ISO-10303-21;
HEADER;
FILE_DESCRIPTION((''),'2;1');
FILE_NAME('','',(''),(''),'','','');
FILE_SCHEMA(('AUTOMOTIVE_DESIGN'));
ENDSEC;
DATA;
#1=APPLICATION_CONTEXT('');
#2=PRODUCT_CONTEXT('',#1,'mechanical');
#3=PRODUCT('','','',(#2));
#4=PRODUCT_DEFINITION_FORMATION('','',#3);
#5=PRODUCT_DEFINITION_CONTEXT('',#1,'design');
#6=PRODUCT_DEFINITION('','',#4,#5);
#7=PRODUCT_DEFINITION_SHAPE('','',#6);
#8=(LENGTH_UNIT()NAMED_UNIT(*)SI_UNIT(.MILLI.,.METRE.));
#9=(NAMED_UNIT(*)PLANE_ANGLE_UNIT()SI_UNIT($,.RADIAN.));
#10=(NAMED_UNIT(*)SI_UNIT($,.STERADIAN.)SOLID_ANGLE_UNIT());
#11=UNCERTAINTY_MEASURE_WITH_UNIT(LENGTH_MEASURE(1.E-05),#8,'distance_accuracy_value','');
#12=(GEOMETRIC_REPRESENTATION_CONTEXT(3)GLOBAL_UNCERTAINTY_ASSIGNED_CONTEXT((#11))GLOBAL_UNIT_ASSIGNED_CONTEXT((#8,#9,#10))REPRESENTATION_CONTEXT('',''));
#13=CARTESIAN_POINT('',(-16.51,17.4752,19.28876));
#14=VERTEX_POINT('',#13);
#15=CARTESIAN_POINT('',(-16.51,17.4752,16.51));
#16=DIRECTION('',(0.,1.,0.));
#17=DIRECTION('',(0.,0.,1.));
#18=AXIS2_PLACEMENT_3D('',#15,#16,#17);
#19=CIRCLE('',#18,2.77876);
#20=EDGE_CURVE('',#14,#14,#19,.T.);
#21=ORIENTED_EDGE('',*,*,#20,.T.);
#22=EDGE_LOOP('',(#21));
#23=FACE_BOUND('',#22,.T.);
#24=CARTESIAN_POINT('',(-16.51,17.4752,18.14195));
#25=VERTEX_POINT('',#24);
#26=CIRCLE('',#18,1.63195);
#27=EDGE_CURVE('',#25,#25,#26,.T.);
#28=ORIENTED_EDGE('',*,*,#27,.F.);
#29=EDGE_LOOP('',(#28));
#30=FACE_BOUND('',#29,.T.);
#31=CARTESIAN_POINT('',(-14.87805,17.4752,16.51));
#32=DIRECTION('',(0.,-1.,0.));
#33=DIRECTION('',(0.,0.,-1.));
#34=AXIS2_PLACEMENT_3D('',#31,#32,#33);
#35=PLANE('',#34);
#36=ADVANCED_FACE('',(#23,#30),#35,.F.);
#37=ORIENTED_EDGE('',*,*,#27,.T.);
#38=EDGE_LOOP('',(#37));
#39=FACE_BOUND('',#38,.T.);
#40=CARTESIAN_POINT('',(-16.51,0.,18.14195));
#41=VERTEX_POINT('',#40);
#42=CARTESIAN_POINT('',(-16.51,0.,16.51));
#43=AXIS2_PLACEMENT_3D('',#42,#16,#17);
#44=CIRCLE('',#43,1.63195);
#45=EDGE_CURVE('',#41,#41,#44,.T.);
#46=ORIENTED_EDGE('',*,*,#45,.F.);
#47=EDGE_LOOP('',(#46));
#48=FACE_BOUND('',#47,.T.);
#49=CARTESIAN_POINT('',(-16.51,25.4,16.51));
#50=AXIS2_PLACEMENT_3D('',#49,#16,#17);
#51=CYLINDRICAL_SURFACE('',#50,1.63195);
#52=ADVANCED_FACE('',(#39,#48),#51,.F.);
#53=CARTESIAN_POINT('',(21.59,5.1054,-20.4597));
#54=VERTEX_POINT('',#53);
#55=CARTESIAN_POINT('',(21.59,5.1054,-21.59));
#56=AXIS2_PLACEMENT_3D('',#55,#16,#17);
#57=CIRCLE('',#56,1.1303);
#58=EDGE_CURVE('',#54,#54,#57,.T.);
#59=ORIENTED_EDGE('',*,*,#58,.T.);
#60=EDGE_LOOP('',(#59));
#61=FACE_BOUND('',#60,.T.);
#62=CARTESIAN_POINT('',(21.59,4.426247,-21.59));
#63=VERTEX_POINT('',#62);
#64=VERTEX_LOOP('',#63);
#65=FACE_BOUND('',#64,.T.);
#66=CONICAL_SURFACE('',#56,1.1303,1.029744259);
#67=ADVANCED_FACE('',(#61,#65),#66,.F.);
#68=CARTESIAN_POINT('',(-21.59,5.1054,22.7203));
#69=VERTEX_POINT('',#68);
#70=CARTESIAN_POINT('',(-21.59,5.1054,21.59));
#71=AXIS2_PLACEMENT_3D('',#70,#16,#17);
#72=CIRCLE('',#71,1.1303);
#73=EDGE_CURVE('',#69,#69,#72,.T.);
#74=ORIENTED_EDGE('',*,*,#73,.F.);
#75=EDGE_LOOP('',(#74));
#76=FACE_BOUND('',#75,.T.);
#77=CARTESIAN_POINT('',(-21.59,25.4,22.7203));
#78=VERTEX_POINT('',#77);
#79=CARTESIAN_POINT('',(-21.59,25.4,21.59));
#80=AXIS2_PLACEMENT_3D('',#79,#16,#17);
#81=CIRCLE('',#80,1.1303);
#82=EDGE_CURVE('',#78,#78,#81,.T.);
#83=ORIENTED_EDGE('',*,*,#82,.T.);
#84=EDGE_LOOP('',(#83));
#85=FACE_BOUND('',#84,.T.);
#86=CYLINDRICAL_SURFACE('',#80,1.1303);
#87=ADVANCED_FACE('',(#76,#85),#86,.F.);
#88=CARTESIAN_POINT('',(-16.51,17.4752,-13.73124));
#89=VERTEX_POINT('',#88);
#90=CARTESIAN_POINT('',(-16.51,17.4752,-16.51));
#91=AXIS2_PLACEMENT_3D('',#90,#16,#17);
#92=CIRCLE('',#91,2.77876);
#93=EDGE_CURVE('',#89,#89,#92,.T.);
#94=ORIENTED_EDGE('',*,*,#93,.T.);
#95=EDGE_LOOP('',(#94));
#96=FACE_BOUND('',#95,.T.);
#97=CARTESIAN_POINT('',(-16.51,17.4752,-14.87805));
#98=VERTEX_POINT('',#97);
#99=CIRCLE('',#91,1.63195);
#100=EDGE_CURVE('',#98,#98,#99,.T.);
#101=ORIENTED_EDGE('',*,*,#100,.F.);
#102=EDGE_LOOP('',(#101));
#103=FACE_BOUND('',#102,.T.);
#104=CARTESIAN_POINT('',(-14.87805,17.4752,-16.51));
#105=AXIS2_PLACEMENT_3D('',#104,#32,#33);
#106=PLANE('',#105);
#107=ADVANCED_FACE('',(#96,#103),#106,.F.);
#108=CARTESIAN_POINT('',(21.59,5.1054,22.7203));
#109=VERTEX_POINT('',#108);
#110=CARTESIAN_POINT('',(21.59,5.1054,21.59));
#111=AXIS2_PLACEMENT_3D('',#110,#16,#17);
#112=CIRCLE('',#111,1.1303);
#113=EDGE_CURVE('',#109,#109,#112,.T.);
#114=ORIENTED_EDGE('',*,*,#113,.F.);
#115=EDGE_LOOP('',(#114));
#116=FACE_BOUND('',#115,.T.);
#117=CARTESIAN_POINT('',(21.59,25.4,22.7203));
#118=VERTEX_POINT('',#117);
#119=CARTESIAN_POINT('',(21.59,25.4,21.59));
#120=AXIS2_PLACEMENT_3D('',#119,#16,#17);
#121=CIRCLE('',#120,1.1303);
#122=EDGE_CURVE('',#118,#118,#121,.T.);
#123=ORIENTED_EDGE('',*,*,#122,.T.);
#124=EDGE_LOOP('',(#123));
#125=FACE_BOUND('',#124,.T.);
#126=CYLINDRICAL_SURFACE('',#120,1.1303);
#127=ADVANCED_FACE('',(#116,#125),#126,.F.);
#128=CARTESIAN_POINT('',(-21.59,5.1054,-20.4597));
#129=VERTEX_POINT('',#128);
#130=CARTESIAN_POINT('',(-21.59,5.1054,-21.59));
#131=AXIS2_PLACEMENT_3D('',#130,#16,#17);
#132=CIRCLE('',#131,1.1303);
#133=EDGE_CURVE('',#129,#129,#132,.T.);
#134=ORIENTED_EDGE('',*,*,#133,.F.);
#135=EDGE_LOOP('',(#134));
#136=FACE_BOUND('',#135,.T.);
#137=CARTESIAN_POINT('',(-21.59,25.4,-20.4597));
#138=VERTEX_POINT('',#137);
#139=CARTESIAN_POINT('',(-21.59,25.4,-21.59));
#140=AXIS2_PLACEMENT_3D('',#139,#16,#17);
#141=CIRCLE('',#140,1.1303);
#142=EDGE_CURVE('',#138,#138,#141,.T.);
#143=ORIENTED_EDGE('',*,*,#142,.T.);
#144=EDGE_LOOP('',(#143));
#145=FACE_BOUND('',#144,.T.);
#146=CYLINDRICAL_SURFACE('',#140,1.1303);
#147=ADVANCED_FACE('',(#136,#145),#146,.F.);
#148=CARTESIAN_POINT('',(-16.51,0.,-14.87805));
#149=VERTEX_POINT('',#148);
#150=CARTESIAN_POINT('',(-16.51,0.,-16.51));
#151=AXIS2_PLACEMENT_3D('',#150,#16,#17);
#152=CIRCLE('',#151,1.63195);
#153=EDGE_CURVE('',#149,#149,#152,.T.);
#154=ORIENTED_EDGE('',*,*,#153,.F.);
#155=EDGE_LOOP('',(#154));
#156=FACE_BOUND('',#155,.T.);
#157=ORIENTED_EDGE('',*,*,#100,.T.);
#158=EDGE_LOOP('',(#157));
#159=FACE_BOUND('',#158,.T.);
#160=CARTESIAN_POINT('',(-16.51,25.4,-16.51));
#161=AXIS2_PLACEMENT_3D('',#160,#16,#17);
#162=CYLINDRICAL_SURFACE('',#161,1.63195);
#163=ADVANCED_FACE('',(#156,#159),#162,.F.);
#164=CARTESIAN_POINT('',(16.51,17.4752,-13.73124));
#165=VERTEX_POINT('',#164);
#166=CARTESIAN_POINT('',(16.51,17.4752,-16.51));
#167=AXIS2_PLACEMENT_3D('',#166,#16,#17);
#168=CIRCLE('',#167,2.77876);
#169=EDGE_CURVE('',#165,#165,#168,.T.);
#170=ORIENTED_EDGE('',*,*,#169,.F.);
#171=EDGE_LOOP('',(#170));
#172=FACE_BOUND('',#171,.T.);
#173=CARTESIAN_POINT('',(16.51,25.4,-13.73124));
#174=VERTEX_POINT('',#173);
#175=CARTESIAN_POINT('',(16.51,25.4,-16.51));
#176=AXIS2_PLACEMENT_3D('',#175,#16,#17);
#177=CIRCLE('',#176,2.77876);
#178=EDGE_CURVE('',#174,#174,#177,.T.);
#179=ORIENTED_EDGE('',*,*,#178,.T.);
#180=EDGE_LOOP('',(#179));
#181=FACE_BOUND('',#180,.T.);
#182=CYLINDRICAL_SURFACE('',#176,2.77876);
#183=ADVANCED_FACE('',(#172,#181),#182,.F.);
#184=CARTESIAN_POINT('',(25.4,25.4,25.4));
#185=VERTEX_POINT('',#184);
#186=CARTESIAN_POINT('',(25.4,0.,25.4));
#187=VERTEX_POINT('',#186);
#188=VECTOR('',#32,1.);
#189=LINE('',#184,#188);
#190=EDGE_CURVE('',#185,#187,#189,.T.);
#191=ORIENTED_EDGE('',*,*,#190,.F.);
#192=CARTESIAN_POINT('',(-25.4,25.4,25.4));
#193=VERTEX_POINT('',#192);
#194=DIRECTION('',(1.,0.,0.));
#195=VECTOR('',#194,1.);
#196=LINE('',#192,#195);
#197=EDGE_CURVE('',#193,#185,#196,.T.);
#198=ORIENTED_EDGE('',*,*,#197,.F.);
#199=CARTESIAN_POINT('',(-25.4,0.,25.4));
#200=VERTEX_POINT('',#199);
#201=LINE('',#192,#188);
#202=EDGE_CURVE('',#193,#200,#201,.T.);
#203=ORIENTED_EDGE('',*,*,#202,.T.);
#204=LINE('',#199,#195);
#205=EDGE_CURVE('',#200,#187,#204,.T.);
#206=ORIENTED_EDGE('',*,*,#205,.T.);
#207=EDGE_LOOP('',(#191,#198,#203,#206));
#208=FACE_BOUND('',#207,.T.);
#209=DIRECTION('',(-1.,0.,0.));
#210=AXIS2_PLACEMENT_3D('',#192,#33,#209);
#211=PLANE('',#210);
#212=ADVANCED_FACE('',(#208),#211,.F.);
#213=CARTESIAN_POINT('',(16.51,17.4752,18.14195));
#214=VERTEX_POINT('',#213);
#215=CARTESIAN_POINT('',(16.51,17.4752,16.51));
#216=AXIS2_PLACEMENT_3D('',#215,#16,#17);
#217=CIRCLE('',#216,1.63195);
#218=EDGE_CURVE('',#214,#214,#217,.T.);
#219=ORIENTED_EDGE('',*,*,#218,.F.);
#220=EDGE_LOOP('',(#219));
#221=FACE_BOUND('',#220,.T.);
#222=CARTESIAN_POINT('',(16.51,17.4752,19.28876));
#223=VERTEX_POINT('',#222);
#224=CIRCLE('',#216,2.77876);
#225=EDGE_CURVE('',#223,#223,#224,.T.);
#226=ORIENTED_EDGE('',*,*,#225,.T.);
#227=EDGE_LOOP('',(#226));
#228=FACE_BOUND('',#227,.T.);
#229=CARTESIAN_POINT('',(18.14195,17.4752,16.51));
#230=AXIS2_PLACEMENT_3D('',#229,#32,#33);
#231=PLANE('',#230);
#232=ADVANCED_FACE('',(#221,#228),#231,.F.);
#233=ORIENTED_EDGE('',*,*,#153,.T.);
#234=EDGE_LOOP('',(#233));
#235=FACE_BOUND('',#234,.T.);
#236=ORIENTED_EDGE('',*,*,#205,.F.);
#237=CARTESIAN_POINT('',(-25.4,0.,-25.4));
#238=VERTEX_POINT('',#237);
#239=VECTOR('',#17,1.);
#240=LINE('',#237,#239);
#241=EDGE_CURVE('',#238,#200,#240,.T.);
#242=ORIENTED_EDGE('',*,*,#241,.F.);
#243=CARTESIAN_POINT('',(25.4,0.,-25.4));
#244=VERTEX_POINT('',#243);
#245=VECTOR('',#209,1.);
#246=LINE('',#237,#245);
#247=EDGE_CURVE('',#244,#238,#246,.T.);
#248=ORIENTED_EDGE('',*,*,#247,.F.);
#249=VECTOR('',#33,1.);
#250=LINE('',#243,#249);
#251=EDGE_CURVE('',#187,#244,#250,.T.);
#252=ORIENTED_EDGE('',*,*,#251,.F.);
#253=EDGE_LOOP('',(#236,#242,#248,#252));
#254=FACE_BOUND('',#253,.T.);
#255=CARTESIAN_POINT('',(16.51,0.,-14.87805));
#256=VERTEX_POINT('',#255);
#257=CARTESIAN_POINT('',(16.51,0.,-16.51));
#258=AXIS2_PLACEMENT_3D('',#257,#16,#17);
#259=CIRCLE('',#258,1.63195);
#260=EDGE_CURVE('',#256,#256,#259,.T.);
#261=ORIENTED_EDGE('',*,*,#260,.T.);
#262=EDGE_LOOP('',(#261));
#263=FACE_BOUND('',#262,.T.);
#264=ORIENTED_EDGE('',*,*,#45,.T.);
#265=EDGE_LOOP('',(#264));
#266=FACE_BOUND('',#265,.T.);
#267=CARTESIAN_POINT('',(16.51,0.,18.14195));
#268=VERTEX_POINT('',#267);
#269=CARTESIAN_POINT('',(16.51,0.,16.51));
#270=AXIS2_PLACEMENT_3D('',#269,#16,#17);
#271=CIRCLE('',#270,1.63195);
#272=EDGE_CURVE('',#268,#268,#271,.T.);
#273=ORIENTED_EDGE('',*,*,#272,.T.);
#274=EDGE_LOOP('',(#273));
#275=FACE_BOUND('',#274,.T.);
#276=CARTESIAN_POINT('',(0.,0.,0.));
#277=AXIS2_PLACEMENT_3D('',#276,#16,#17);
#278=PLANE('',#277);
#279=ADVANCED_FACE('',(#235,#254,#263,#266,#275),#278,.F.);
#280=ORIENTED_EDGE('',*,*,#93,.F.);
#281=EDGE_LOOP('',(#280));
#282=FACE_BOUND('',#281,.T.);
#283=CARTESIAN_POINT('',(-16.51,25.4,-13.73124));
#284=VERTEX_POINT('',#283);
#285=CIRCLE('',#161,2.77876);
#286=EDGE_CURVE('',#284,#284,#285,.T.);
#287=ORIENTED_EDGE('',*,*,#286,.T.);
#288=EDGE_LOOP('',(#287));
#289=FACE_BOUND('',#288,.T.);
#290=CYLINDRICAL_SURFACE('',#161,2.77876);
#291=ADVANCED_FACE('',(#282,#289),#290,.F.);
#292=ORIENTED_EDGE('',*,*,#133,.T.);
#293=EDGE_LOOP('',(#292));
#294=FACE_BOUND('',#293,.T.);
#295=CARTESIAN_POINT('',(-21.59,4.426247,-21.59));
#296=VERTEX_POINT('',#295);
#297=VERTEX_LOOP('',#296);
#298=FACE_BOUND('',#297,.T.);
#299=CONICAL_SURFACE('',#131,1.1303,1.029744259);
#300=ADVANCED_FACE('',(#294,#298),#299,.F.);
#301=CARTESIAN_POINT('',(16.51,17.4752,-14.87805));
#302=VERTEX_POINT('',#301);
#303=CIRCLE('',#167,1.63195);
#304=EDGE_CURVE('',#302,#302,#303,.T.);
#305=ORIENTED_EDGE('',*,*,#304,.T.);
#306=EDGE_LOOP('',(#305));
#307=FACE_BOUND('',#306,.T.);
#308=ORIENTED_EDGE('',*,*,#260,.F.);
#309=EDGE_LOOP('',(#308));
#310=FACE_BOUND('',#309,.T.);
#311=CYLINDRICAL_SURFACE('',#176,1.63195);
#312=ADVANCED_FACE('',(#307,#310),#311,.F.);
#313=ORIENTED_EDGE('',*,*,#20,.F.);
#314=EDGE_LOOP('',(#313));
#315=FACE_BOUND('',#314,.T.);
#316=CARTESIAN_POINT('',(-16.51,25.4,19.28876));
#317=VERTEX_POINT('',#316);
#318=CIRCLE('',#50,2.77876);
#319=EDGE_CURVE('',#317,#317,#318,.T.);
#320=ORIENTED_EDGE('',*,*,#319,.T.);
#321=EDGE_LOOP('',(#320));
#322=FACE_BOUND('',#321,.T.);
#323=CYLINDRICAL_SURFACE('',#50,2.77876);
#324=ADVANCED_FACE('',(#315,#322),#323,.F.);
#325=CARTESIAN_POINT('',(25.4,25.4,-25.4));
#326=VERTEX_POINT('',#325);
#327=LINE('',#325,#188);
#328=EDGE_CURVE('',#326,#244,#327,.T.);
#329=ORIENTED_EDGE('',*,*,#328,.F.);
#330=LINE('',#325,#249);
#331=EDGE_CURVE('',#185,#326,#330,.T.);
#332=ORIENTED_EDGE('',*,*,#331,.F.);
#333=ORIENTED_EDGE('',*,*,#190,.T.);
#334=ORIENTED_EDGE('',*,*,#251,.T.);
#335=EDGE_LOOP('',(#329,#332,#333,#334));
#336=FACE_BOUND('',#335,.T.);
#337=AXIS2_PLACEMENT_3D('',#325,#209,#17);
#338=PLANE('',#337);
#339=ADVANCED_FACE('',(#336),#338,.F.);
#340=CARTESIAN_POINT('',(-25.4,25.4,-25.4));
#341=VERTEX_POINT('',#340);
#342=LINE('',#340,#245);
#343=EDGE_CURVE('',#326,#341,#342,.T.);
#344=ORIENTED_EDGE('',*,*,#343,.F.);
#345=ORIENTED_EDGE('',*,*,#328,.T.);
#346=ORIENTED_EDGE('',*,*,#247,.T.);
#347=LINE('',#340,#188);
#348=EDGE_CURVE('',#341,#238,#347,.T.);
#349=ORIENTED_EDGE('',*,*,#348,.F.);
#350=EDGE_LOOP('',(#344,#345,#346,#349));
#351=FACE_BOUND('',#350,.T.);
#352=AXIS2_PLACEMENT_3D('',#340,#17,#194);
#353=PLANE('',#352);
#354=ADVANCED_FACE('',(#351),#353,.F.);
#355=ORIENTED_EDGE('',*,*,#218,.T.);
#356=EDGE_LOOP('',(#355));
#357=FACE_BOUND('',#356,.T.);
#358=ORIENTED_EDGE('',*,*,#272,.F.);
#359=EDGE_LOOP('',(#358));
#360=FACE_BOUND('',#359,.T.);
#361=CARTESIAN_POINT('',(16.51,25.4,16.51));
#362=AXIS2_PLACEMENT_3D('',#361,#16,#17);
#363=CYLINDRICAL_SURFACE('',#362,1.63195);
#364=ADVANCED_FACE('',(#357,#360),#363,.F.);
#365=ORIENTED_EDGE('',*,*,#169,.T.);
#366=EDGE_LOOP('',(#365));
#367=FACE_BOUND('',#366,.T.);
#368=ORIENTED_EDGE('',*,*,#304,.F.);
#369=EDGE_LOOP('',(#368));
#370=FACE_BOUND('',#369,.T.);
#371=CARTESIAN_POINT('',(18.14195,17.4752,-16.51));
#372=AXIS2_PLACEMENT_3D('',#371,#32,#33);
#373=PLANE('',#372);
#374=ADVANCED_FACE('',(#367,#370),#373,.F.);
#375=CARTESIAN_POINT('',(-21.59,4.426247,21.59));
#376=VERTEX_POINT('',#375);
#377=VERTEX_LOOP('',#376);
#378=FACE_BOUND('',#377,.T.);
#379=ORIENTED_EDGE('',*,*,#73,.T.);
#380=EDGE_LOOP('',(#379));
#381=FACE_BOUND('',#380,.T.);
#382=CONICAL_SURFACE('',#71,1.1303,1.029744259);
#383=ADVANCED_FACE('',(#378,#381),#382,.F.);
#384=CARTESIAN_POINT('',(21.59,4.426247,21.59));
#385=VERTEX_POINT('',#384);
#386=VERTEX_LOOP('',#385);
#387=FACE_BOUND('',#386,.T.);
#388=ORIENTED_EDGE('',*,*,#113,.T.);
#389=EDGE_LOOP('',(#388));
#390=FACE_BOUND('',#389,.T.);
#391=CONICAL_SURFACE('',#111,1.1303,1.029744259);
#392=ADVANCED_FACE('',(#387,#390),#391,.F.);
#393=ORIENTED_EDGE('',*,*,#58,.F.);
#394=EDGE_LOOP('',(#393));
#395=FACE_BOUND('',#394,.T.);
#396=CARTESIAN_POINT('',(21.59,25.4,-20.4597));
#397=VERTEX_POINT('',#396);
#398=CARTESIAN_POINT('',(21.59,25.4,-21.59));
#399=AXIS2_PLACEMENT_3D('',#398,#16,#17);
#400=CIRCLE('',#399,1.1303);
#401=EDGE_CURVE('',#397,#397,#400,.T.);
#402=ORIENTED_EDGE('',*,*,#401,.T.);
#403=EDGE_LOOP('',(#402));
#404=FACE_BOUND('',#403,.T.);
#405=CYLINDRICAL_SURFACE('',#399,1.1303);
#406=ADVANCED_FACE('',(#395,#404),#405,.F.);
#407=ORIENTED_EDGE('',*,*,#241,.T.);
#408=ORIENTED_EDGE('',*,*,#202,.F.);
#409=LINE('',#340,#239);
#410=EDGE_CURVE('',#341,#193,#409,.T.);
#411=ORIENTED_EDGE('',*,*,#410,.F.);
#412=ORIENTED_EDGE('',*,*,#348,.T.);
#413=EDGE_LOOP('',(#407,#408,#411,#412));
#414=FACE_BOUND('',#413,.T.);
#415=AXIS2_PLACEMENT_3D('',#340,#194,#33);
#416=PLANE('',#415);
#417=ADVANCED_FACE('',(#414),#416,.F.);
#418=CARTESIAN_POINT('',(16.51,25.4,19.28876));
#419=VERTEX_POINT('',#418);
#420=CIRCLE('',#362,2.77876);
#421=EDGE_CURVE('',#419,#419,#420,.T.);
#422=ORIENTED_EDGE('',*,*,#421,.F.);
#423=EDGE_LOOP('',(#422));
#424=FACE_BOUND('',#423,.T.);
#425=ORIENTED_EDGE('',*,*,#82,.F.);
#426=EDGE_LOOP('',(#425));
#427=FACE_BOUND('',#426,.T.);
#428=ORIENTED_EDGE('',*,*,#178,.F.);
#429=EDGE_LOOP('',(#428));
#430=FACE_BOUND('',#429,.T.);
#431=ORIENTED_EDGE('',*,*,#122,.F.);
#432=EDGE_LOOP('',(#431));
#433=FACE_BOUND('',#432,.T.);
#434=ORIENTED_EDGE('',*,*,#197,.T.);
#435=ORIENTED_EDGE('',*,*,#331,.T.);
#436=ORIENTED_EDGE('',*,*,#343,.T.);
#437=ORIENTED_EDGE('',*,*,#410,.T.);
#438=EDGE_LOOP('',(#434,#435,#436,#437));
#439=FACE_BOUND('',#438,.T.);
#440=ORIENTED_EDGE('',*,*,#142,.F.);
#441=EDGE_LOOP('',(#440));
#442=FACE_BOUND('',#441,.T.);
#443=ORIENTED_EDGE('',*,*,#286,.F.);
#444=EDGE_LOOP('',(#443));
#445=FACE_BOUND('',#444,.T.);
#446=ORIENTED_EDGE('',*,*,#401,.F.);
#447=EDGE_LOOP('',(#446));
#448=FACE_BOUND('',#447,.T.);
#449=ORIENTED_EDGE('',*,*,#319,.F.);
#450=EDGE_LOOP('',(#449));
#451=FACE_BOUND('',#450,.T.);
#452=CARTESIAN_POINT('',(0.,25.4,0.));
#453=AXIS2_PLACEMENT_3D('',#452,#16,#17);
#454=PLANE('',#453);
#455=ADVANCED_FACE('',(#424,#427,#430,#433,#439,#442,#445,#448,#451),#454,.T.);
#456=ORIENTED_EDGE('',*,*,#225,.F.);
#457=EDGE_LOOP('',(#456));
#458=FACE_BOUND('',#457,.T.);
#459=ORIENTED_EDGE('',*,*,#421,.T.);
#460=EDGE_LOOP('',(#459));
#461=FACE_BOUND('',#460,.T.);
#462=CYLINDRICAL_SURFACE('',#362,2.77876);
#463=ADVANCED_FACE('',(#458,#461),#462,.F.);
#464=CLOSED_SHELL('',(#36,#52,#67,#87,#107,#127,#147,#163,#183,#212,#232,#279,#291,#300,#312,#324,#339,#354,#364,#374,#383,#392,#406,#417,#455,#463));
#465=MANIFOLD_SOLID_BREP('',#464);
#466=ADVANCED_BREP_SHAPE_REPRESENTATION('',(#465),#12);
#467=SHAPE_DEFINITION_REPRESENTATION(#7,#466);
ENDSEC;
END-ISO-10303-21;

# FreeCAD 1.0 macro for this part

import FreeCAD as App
import Part
import Sketcher
Q = App.Units.Quantity


def add_polygon(sketch, points):
    """Adds a closed chain of lines whose ends are joined by coincident constraints."""
    first, n = sketch.GeometryCount, len(points)
    for a, b in zip(points, points[1:] + points[:1]):
        sketch.addGeometry(Part.LineSegment(App.Vector(*a, 0), App.Vector(*b, 0)), False)
    for i in range(n):
        sketch.addConstraint(Sketcher.Constraint("Coincident", first + i, 2, first + (i + 1) % n, 1))

doc = App.newDocument("Part")
params = doc.addObject("Spreadsheet::Sheet", "Params")
for row, (alias, value) in enumerate([
    ("sketch1_width", "2 in"),
    ("pad1_length", "1 in"),
    ("sketch2_diameter", "0.089 in"),
    ("hole_diameter", "0.089 in"),
    ("hole_depth", "0.799 in"),
    ("hole2_diameter", "0.1285 in"),
    ("hole2_cbore_diameter", "0.2188 in"),
    ("hole2_cbore_depth", "0.312 in"),
], start=1):
    params.set(f"A{row}", alias)
    params.set(f"B{row}", "=" + value)
    params.setAlias(f"B{row}", alias)

body = doc.addObject("PartDesign::Body", "Body")

sketch1 = body.newObject("Sketcher::SketchObject", "Sketch")
sketch1.AttachmentSupport = (doc.getObject("XZ_Plane"), [""])
sketch1.MapMode = "FlatFace"
add_polygon(sketch1, [(-25.4, -25.4), (-25.4, 25.4), (25.4, 25.4), (25.4, -25.4)])
sketch1.addConstraint([
    Sketcher.Constraint("Vertical", 0),
    Sketcher.Constraint("Horizontal", 1),
    Sketcher.Constraint("Vertical", 2),
    Sketcher.Constraint("Horizontal", 3),
    Sketcher.Constraint("Symmetric", 0, 2, 2, 2, -1, 1),
    Sketcher.Constraint("Equal", 3, 0),
    Sketcher.Constraint("DistanceX", 1, 1, 1, 2, Q("2 in")),
])
sketch1.setExpression("Constraints[10]", "Params.sketch1_width")
pad1 = body.newObject("PartDesign::Pad", "Pad")
pad1.Profile = sketch1
pad1.setExpression("Length", "Params.pad1_length")
pad1.Reversed = True

sketch2 = body.newObject("Sketcher::SketchObject", "Sketch001")
sketch2.AttachmentSupport = (doc.getObject("XZ_Plane"), [""])
sketch2.MapMode = "FlatFace"
sketch2.AttachmentOffset = App.Placement(App.Vector(0, 0, -1 * 25.4), App.Rotation())
sketch2.addGeometry([
    Part.Circle(App.Vector(-21.59, -21.59, 0), App.Vector(0, 0, 1), 1.1303),
    Part.Circle(App.Vector(21.59, -21.59, 0), App.Vector(0, 0, 1), 1.1303),
    Part.Circle(App.Vector(21.59, 21.59, 0), App.Vector(0, 0, 1), 1.1303),
    Part.Circle(App.Vector(-21.59, 21.59, 0), App.Vector(0, 0, 1), 1.1303),
], False)
sketch2.addConstraint([
    Sketcher.Constraint("Equal", 0, 1),
    Sketcher.Constraint("Equal", 1, 2),
    Sketcher.Constraint("Equal", 2, 3),
    Sketcher.Constraint("Symmetric", 0, 3, 2, 3, -1, 1),
    Sketcher.Constraint("Symmetric", 1, 3, 3, 3, -1, 1),
    Sketcher.Constraint("Symmetric", 0, 3, 1, 3, -2),
    Sketcher.Constraint("Diameter", 0, Q("0.089 in")),
    Sketcher.Constraint("DistanceX", 0, 3, 1, 3, Q("1.7 in")),
    Sketcher.Constraint("DistanceY", 1, 3, 2, 3, Q("1.7 in")),
])
sketch2.setExpression("Constraints[6]", "Params.sketch2_diameter")
doc.recompute()
hole = body.newObject("PartDesign::Hole", "Hole")
hole.Profile = sketch2
hole.ThreadType = "None"
hole.setExpression("Diameter", "Params.hole_diameter")
hole.DepthType = "Dimension"
hole.setExpression("Depth", "Params.hole_depth")
hole.DrillPoint = "Angled"
hole.DrillPointAngle = 118
hole.Reversed = True

sketch3 = body.newObject("Sketcher::SketchObject", "Sketch002")
sketch3.AttachmentSupport = (doc.getObject("XZ_Plane"), [""])
sketch3.MapMode = "FlatFace"
sketch3.AttachmentOffset = App.Placement(App.Vector(0, 0, -1 * 25.4), App.Rotation())
sketch3.addGeometry([
    Part.Circle(App.Vector(-16.51, -16.51, 0), App.Vector(0, 0, 1), 1.63195),
    Part.Circle(App.Vector(16.51, -16.51, 0), App.Vector(0, 0, 1), 1.63195),
    Part.Circle(App.Vector(16.51, 16.51, 0), App.Vector(0, 0, 1), 1.63195),
    Part.Circle(App.Vector(-16.51, 16.51, 0), App.Vector(0, 0, 1), 1.63195),
], False)
sketch3.addConstraint([
    Sketcher.Constraint("Equal", 0, 1),
    Sketcher.Constraint("Equal", 1, 2),
    Sketcher.Constraint("Equal", 2, 3),
    Sketcher.Constraint("Symmetric", 0, 3, 2, 3, -1, 1),
    Sketcher.Constraint("Symmetric", 1, 3, 3, 3, -1, 1),
    Sketcher.Constraint("Symmetric", 0, 3, 1, 3, -2),
    Sketcher.Constraint("Diameter", 0, Q("0.1285 in")),
    Sketcher.Constraint("DistanceX", 0, 3, 1, 3, Q("1.3 in")),
    Sketcher.Constraint("DistanceY", 1, 3, 2, 3, Q("1.3 in")),
])
doc.recompute()
hole2 = body.newObject("PartDesign::Hole", "Hole001")
hole2.Profile = sketch3
hole2.ThreadType = "None"
hole2.setExpression("Diameter", "Params.hole2_diameter")
hole2.DepthType = "ThroughAll"
hole2.HoleCutType = "Counterbore"
hole2.setExpression("HoleCutDiameter", "Params.hole2_cbore_diameter")
hole2.setExpression("HoleCutDepth", "Params.hole2_cbore_depth")
hole2.Reversed = True

doc.recompute()
